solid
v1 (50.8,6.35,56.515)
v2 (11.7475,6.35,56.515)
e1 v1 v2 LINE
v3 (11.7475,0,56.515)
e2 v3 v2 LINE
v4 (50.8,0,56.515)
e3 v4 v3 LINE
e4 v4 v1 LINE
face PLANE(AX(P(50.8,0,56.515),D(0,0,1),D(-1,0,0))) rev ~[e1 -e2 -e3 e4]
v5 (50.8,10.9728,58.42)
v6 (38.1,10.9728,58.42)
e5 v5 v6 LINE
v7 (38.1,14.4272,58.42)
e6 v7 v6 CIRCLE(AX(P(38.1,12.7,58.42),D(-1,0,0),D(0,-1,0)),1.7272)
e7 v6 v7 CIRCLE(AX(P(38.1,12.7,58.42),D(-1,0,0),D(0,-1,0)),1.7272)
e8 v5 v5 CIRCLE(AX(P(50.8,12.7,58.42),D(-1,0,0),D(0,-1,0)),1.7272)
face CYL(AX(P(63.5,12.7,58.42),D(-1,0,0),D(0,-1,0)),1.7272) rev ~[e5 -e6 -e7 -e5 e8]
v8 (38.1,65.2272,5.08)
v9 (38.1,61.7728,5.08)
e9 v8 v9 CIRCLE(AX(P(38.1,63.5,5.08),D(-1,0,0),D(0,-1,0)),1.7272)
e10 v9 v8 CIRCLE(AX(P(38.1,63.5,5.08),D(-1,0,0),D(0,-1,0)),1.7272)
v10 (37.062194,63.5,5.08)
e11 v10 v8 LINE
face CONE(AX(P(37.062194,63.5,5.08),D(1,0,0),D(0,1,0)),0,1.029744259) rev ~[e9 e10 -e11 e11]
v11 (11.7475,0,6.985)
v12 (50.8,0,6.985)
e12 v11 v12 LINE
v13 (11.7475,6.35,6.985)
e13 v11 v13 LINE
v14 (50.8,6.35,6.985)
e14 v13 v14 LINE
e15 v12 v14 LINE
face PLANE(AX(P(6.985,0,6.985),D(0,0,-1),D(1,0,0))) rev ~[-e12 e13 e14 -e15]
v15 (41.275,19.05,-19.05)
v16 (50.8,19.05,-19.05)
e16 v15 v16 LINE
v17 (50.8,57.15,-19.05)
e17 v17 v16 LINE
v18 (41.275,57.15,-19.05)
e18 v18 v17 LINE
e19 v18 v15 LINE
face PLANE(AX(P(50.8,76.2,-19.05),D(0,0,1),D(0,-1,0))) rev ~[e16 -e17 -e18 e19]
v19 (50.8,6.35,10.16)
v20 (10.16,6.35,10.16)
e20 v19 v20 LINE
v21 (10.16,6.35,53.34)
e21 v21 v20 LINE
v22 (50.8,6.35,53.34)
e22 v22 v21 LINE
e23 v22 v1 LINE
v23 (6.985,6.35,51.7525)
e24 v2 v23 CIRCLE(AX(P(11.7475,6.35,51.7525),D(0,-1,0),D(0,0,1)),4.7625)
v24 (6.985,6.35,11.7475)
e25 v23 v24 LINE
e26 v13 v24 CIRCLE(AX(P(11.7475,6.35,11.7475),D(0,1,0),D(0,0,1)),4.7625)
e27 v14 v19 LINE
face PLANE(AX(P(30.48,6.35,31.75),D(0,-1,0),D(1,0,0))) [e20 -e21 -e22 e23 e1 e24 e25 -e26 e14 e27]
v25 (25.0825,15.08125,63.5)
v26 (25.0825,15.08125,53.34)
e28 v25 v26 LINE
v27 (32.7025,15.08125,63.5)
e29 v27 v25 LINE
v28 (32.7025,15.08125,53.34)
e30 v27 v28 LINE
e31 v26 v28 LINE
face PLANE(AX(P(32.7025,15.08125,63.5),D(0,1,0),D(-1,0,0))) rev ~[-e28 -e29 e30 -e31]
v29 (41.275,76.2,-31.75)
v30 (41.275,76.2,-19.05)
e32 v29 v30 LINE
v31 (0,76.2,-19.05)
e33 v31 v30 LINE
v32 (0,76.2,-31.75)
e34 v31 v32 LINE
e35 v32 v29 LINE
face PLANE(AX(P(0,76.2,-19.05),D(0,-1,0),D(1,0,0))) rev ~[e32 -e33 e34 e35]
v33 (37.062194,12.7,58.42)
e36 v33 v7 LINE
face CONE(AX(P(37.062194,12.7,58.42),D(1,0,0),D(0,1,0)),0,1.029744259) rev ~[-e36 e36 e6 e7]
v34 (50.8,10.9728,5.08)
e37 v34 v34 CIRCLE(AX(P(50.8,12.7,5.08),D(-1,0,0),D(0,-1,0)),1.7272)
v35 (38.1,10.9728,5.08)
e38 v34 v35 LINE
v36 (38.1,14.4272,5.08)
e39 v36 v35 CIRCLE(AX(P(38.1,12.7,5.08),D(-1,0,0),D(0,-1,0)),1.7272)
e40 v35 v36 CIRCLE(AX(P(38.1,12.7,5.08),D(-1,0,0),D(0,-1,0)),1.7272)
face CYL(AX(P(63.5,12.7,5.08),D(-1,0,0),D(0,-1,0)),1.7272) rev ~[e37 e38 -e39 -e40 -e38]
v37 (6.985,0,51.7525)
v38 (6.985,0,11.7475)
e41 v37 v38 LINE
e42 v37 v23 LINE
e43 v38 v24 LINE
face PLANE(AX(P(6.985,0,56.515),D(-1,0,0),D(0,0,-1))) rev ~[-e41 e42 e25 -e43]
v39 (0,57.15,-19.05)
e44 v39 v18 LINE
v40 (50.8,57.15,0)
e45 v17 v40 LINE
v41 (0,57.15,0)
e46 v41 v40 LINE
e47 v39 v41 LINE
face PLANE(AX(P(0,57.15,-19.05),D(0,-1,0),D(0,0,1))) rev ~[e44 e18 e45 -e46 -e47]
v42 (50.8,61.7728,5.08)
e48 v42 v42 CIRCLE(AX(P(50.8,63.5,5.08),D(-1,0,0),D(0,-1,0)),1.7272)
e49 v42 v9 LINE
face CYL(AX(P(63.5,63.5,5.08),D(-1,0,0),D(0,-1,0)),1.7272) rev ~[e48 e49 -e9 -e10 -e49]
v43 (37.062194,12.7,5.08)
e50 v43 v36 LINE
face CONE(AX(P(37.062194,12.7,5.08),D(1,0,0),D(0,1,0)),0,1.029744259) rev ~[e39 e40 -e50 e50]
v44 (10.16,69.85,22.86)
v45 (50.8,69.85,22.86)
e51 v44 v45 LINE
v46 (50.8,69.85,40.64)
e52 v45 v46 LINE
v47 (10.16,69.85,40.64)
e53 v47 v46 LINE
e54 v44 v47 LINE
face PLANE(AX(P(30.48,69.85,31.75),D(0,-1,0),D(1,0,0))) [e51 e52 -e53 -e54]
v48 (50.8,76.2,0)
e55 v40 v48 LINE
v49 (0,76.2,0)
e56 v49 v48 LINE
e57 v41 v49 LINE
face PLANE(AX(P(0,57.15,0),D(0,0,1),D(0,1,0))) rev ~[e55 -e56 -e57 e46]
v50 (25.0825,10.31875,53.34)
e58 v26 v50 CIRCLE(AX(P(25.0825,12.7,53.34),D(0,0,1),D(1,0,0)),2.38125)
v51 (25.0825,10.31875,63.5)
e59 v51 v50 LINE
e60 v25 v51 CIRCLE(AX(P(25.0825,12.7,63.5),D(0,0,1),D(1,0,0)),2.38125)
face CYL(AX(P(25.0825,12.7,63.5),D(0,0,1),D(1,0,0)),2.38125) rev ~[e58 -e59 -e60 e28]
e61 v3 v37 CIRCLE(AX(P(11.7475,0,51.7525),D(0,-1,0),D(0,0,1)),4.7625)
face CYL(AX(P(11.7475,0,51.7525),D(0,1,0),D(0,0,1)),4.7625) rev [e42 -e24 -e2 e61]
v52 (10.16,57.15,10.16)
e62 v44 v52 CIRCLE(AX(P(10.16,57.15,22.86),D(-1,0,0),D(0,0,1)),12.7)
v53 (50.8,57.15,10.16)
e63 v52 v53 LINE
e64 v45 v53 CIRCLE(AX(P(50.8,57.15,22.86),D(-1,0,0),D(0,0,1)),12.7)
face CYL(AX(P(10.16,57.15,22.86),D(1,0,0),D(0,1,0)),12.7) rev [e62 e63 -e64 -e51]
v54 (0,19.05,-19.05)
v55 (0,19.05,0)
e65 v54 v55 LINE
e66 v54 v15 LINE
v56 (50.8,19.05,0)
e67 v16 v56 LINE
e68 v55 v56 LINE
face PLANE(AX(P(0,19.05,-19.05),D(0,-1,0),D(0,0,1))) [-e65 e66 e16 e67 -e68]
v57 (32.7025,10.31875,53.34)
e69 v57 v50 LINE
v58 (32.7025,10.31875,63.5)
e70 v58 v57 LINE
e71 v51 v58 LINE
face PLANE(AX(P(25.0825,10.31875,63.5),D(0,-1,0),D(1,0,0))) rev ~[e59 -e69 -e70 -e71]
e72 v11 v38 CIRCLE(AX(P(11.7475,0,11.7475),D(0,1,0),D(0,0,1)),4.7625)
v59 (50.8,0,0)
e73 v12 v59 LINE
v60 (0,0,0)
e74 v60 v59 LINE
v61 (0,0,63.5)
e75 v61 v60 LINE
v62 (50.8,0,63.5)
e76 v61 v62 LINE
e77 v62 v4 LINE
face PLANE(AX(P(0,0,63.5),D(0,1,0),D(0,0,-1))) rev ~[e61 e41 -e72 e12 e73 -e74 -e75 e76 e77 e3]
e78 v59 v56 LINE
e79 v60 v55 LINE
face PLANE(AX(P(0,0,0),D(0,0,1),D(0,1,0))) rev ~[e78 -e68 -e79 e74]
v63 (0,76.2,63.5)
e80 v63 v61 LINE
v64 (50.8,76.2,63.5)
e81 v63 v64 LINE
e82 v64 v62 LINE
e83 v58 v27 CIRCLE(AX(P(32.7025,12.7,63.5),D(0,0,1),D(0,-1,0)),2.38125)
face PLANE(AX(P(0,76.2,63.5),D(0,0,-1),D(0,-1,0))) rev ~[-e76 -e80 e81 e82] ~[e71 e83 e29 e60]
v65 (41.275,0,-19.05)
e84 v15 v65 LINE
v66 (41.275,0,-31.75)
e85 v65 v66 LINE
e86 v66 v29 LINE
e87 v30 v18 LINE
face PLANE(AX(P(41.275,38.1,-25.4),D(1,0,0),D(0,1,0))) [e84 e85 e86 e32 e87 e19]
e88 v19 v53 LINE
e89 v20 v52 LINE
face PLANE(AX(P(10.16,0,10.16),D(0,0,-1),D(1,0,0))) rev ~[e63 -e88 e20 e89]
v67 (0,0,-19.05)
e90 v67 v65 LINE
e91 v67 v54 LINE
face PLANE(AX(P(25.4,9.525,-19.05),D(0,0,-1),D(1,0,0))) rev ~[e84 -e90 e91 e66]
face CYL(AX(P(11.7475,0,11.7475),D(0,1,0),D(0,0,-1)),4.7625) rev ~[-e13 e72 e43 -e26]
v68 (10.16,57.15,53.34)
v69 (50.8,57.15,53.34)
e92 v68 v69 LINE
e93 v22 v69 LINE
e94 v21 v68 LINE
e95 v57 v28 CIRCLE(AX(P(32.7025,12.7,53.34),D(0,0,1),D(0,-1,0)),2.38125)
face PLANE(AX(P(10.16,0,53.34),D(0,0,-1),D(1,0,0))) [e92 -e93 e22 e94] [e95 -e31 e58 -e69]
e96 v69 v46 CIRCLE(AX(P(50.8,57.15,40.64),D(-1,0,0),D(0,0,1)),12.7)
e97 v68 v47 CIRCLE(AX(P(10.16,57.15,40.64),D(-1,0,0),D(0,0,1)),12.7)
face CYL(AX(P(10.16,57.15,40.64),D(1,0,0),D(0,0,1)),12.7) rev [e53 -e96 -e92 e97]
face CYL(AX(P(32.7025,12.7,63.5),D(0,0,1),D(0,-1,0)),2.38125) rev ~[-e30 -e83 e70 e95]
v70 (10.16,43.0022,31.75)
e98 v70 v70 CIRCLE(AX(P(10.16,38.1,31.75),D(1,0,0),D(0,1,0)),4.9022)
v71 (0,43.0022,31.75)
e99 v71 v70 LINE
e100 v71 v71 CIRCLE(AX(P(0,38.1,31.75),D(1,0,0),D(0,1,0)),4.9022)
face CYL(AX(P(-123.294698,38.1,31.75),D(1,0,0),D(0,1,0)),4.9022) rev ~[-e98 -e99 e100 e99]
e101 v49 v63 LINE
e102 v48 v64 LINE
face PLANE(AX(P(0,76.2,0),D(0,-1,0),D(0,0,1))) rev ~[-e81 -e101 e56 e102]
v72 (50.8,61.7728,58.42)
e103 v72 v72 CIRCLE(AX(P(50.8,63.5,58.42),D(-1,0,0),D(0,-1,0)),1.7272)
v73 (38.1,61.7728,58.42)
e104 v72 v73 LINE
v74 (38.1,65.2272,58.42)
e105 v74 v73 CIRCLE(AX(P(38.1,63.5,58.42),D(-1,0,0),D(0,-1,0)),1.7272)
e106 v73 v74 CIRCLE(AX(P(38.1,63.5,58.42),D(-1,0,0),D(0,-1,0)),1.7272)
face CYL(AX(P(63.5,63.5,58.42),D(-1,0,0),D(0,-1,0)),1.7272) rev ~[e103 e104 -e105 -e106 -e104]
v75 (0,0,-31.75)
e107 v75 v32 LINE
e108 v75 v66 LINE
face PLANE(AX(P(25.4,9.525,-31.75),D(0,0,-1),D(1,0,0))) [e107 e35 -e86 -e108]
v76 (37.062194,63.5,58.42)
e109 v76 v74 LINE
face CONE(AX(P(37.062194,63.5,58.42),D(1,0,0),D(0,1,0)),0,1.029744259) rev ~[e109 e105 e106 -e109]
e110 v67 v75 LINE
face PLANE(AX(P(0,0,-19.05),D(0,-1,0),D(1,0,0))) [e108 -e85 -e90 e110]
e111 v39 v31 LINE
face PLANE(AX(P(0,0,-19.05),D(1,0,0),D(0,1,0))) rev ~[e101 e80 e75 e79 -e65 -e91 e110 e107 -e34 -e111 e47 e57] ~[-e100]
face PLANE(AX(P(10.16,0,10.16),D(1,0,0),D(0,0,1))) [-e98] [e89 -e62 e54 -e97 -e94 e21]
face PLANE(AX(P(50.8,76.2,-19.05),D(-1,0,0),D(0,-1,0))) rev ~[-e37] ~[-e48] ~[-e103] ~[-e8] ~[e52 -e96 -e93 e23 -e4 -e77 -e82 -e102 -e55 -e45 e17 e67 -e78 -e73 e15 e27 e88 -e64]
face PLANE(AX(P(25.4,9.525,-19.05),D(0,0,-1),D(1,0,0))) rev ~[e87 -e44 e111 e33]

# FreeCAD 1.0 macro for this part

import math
import FreeCAD as App
import Part
import Sketcher
from FreeCAD import Vector
Q = App.Units.Quantity


def edges_at(feature, points):
    """Names of the edges that pass closest to the given points."""
    edges = feature.Shape.Edges
    near = lambda p: min(range(len(edges)), key=lambda i: edges[i].distToShape(Part.Vertex(*p))[0])
    return sorted({f"Edge{near(p) + 1}" for p in points})


def add_polygon(sketch, points):
    """Adds a closed chain of lines whose ends are joined by coincident constraints."""
    first, n = sketch.GeometryCount, len(points)
    for a, b in zip(points, points[1:] + points[:1]):
        sketch.addGeometry(Part.LineSegment(App.Vector(*a, 0), App.Vector(*b, 0)), False)
    for i in range(n):
        sketch.addConstraint(Sketcher.Constraint("Coincident", first + i, 2, first + (i + 1) % n, 1))

doc = App.newDocument("Part")
body = doc.addObject("PartDesign::Body", "Body")

sketch1 = body.newObject("Sketcher::SketchObject", "Sketch")
sketch1.AttachmentSupport = (doc.getObject("YZ_Plane"), [""])
sketch1.MapMode = "FlatFace"
add_polygon(sketch1, [(0, 64), (0, 0), (19, 0), (19, -19), (57, -19), (57, 0), (76, 0), (76, 64)])
sketch1.addConstraint([
    Sketcher.Constraint("Vertical", 0),
    Sketcher.Constraint("Horizontal", 1),
    Sketcher.Constraint("Vertical", 2),
    Sketcher.Constraint("Horizontal", 3),
    Sketcher.Constraint("Vertical", 4),
    Sketcher.Constraint("Horizontal", 5),
    Sketcher.Constraint("Vertical", 6),
    Sketcher.Constraint("Horizontal", 7),
    Sketcher.Constraint("Coincident", 0, 2, -1, 1),
    Sketcher.Constraint("PointOnObject", 4, 2, -1),
    Sketcher.Constraint("Equal", 1, 5),
    Sketcher.Constraint("Equal", 5, 2),
    Sketcher.Constraint("DistanceX", 7, 2, 7, 1, Q("3 in")),
    Sketcher.Constraint("DistanceX", 3, 1, 3, 2, Q("1.5 in")),
    Sketcher.Constraint("DistanceY", 0, 2, 0, 1, Q("2.5 in")),
])
pad1 = body.newObject("PartDesign::Pad", "Pad")
pad1.Profile = sketch1
pad1.Length = Q("2 in")

sketch2 = body.newObject("Sketcher::SketchObject", "Sketch001")
sketch2.AttachmentSupport = (doc.getObject("YZ_Plane"), [""])
sketch2.MapMode = "FlatFace"
sketch2.addGeometry(Part.Circle(Vector(38.1, 31.8, 0), Vector(0, 0, 1), 4.9), False)
sketch2.addConstraint([
    Sketcher.Constraint("Diameter", 0, Q("0.386 in")),
    Sketcher.Constraint("DistanceX", -1, 1, 0, 3, Q("1.5 in")),
    Sketcher.Constraint("DistanceY", -1, 1, 0, 3, Q("1.25 in")),
])
doc.recompute()
hole = body.newObject("PartDesign::Hole", "Hole")
hole.Profile = sketch2
hole.ThreadType = "None"
hole.Diameter = Q("0.386 in")
hole.DepthType = "ThroughAll"
hole.Reversed = True

sketch3 = body.newObject("Sketcher::SketchObject", "Sketch002")
sketch3.AttachmentSupport = (doc.getObject("XY_Plane"), [""])
sketch3.MapMode = "FlatFace"
sketch3.AttachmentOffset = App.Placement(Vector(0, 0, -0.75 * 25.4), App.Rotation())
add_polygon(sketch3, [(0, 0), (0, 76), (51, 76), (51, 0)])
sketch3.addConstraint([
    Sketcher.Constraint("Vertical", 0),
    Sketcher.Constraint("Horizontal", 1),
    Sketcher.Constraint("Vertical", 2),
    Sketcher.Constraint("Horizontal", 3),
    Sketcher.Constraint("Coincident", 3, 2, -1, 1),
    Sketcher.Constraint("DistanceX", 1, 1, 1, 2, Q("2 in")),
    Sketcher.Constraint("DistanceY", 0, 1, 0, 2, Q("3 in")),
])
pad2 = body.newObject("PartDesign::Pad", "Pad001")
pad2.Profile = sketch3
pad2.Length = Q("0.5 in")
pad2.Reversed = True

sketch4 = body.newObject("Sketcher::SketchObject", "Sketch003")
sketch4.AttachmentSupport = (doc.getObject("XZ_Plane"), [""])
sketch4.MapMode = "FlatFace"
add_polygon(sketch4, [(10, 53), (10, 10), (51, 10), (51, 53)])
sketch4.addConstraint([
    Sketcher.Constraint("Vertical", 0),
    Sketcher.Constraint("Horizontal", 1),
    Sketcher.Constraint("Vertical", 2),
    Sketcher.Constraint("Horizontal", 3),
    Sketcher.Constraint("DistanceX", 1, 1, 1, 2, Q("1.6 in")),
    Sketcher.Constraint("DistanceY", 0, 2, 0, 1, Q("1.7 in")),
    Sketcher.Constraint("DistanceX", -1, 1, 1, 2, Q("2 in")),
    Sketcher.Constraint("DistanceY", -1, 1, 0, 2, Q("0.4 in")),
])
pocket1 = body.newObject("PartDesign::Pocket", "Pocket")
pocket1.Profile = sketch4
pocket1.Length = Q("2.75 in")

sketch5 = body.newObject("Sketcher::SketchObject", "Sketch004")
sketch5.AttachmentSupport = (doc.getObject("XZ_Plane"), [""])
sketch5.MapMode = "FlatFace"
add_polygon(sketch5, [(51, 57), (7, 57), (7, 7), (51, 7)])
sketch5.addConstraint([
    Sketcher.Constraint("Horizontal", 0),
    Sketcher.Constraint("Vertical", 1),
    Sketcher.Constraint("Horizontal", 2),
    Sketcher.Constraint("Vertical", 3),
    Sketcher.Constraint("DistanceX", -1, 1, 2, 2, Q("2 in")),
    Sketcher.Constraint("DistanceY", 1, 2, 1, 1, Q("1.95 in")),
    Sketcher.Constraint("DistanceX", 0, 2, 0, 1, Q("1.725 in")),
    Sketcher.Constraint("DistanceY", -1, 1, 0, 2, Q("2.225 in")),
])
pocket2 = body.newObject("PartDesign::Pocket", "Pocket001")
pocket2.Profile = sketch5
pocket2.Length = Q("0.25 in")

sketch6 = body.newObject("Sketcher::SketchObject", "Sketch005")
sketch6.AttachmentSupport = (doc.getObject("YZ_Plane"), [""])
sketch6.MapMode = "FlatFace"
sketch6.AttachmentOffset = App.Placement(Vector(0, 0, 2 * 25.4), App.Rotation())
add_polygon(sketch6, [(0, -19), (0, -32), (76, -32), (76, -19)])
sketch6.addConstraint([
    Sketcher.Constraint("Vertical", 0),
    Sketcher.Constraint("Horizontal", 1),
    Sketcher.Constraint("Vertical", 2),
    Sketcher.Constraint("Horizontal", 3),
    Sketcher.Constraint("PointOnObject", 0, 2, -2),
    Sketcher.Constraint("DistanceX", 1, 1, 1, 2, Q("3 in")),
    Sketcher.Constraint("DistanceY", 0, 2, 0, 1, Q("0.5 in")),
    Sketcher.Constraint("DistanceY", 0, 2, -1, 1, Q("1.25 in")),
])
pocket3 = body.newObject("PartDesign::Pocket", "Pocket002")
pocket3.Profile = sketch6
pocket3.Length = Q("0.375 in")

sketch7 = body.newObject("Sketcher::SketchObject", "Sketch006")
sketch7.AttachmentSupport = (doc.getObject("YZ_Plane"), [""])
sketch7.MapMode = "FlatFace"
sketch7.AttachmentOffset = App.Placement(Vector(0, 0, 2 * 25.4), App.Rotation())
sketch7.addGeometry([
    Part.Circle(Vector(12.7, 58.4, 0), Vector(0, 0, 1), 1.7),
    Part.Circle(Vector(63.5, 58.4, 0), Vector(0, 0, 1), 1.7),
    Part.Circle(Vector(12.7, 5.1, 0), Vector(0, 0, 1), 1.7),
    Part.Circle(Vector(63.5, 5.1, 0), Vector(0, 0, 1), 1.7),
], False)
sketch7.addConstraint([
    Sketcher.Constraint("Equal", 0, 1),
    Sketcher.Constraint("Equal", 1, 2),
    Sketcher.Constraint("Equal", 2, 3),
    Sketcher.Constraint("Horizontal", 0, 3, 1, 3),
    Sketcher.Constraint("Horizontal", 2, 3, 3, 3),
    Sketcher.Constraint("Vertical", 0, 3, 2, 3),
    Sketcher.Constraint("Vertical", 1, 3, 3, 3),
    Sketcher.Constraint("Diameter", 0, Q("0.136 in")),
    Sketcher.Constraint("DistanceX", 0, 3, 1, 3, Q("2 in")),
    Sketcher.Constraint("DistanceX", -1, 1, 0, 3, Q("0.5 in")),
    Sketcher.Constraint("DistanceY", -1, 1, 0, 3, Q("2.3 in")),
    Sketcher.Constraint("DistanceY", -1, 1, 2, 3, Q("0.2 in")),
])
doc.recompute()
hole2 = body.newObject("PartDesign::Hole", "Hole001")
hole2.Profile = sketch7
hole2.ThreadType = "None"
hole2.Diameter = Q("0.136 in")
hole2.DepthType = "Dimension"
hole2.Depth = Q("0.5 in")
hole2.DrillPoint = "Angled"
hole2.DrillPointAngle = 118
doc.recompute()

fillet = body.newObject("PartDesign::Fillet", "Fillet")
fillet.Base = (hole2, edges_at(hole2, [(30.48, 69.85, 53.34)]))
fillet.Radius = Q("0.5 in")
doc.recompute()

fillet2 = body.newObject("PartDesign::Fillet", "Fillet001")
fillet2.Base = (fillet, edges_at(fillet, [(30.48, 69.85, 10.16)]))
fillet2.Radius = Q("0.5 in")
doc.recompute()

fillet3 = body.newObject("PartDesign::Fillet", "Fillet002")
fillet3.Base = (fillet2, edges_at(fillet2, [(6.985, 3.175, 56.515), (6.985, 3.175, 6.985)]))
fillet3.Radius = Q("0.1875 in")

sketch8 = body.newObject("Sketcher::SketchObject", "Sketch007")
sketch8.AttachmentSupport = (doc.getObject("XY_Plane"), [""])
sketch8.MapMode = "FlatFace"
sketch8.AttachmentOffset = App.Placement(Vector(0, 0, 2.5 * 25.4), App.Rotation())
sketch8.addGeometry([
    Part.LineSegment(Vector(25.1, 10.3, 0), Vector(32.7, 10.3, 0)),
    Part.ArcOfCircle(Part.Circle(Vector(32.7, 12.7, 0), Vector(0, 0, 1), 2.4), math.radians(-90), math.radians(90)),
    Part.LineSegment(Vector(32.7, 15.1, 0), Vector(25.1, 15.1, 0)),
    Part.ArcOfCircle(Part.Circle(Vector(25.1, 12.7, 0), Vector(0, 0, 1), 2.4), math.radians(90), math.radians(270)),
], False)
sketch8.addConstraint([
    Sketcher.Constraint("Tangent", 0, 2, 1, 1),
    Sketcher.Constraint("Tangent", 1, 2, 2, 1),
    Sketcher.Constraint("Tangent", 2, 2, 3, 1),
    Sketcher.Constraint("Tangent", 3, 2, 0, 1),
    Sketcher.Constraint("Horizontal", 0),
    Sketcher.Constraint("Horizontal", 2),
    Sketcher.Constraint("DistanceX", 0, 1, 0, 2, Q("0.3 in")),
    Sketcher.Constraint("Radius", 1, Q("0.09375 in")),
    Sketcher.Constraint("DistanceY", -1, 1, 1, 3, Q("0.5 in")),
    Sketcher.Constraint("DistanceX", -1, 1, 1, 3, Q("1.2875 in")),
])
pocket4 = body.newObject("PartDesign::Pocket", "Pocket003")
pocket4.Profile = sketch8
pocket4.Length = Q("1 in")

doc.recompute()
